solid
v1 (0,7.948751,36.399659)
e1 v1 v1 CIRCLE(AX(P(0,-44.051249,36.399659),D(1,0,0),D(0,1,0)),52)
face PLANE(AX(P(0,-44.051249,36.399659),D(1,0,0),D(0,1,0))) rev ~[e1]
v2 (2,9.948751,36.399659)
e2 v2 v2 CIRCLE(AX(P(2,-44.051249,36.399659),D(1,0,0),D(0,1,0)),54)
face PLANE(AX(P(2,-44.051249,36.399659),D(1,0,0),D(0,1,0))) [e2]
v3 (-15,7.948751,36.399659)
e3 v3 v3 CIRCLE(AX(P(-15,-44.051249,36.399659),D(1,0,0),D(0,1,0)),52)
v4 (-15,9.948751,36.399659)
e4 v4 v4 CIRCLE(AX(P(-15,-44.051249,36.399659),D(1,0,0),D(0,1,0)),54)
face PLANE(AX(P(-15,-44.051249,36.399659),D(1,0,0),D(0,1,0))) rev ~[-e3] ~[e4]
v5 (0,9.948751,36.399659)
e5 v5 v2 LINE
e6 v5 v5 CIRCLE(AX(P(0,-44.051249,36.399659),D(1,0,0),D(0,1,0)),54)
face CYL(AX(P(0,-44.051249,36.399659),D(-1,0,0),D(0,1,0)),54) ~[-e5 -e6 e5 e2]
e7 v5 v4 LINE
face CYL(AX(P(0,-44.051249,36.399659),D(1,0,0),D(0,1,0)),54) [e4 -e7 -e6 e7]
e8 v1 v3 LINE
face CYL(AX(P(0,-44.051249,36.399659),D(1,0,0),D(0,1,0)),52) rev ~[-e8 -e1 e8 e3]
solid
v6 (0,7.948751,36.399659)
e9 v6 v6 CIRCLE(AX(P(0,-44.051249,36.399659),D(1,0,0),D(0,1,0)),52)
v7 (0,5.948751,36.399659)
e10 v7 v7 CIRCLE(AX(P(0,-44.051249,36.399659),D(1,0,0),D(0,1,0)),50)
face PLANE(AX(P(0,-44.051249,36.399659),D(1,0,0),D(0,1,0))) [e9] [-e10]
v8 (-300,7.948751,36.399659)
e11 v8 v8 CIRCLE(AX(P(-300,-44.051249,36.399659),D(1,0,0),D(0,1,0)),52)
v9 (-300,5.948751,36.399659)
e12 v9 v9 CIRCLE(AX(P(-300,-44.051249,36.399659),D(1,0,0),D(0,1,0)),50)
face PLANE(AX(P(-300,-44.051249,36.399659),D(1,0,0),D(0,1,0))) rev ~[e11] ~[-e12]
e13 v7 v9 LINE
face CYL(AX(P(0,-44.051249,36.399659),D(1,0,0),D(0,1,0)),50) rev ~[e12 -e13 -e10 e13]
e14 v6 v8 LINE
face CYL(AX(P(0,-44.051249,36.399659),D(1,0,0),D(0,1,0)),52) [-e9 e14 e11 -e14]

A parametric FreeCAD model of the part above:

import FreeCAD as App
import Part
import Sketcher
from FreeCAD import Vector
Q = App.Units.Quantity

doc = App.newDocument("Part")
params = doc.addObject("Spreadsheet::Sheet", "Params")
for row, (alias, value) in enumerate([
    ("sketch1_diameter", "104 mm"),
    ("sketch1_diameter2", "100 mm"),
    ("pad1_length", "300 mm"),
    ("sketch2_diameter", "108 mm"),
    ("sketch2_diameter2", "104 mm"),
    ("pad2_length", "15 mm"),
    ("sketch3_diameter", "108 mm"),
    ("pad3_length", "2 mm"),
], start=1):
    params.set(f"A{row}", alias)
    params.set(f"B{row}", "=" + value)
    params.setAlias(f"B{row}", alias)

body = doc.addObject("PartDesign::Body", "Body")

# Sketch on YZ plane
sketch1 = body.newObject("Sketcher::SketchObject", "Sketch")
sketch1.AttachmentSupport = (doc.getObject("YZ_Plane"), [""])
sketch1.MapMode = "FlatFace"
sketch1.addGeometry([
    Part.Circle(Vector(-44, 36, 0), Vector(0, 0, 1), 52),
    Part.Circle(Vector(-44, 36, 0), Vector(0, 0, 1), 50),
], False)
sketch1.addConstraint([
    Sketcher.Constraint("Coincident", 1, 3, 0, 3),
    Sketcher.Constraint("Diameter", 0, Q("104 mm")),
    Sketcher.Constraint("Diameter", 1, Q("100 mm")),
    Sketcher.Constraint("DistanceX", 0, 3, -1, 1, Q("44.051249 mm")),
    Sketcher.Constraint("DistanceY", -1, 1, 0, 3, Q("36.399659 mm")),
])
sketch1.setExpression("Constraints[1]", "Params.sketch1_diameter")
sketch1.setExpression("Constraints[2]", "Params.sketch1_diameter2")
pad1 = body.newObject("PartDesign::Pad", "Pad")
pad1.Profile = sketch1
pad1.setExpression("Length", "Params.pad1_length")
pad1.Reversed = True
body2 = doc.addObject("PartDesign::Body", "Body001")

# Sketch on YZ plane
sketch2 = body2.newObject("Sketcher::SketchObject", "Sketch001")
sketch2.AttachmentSupport = (doc.getObject("YZ_Plane001"), [""])
sketch2.MapMode = "FlatFace"
sketch2.addGeometry([
    Part.Circle(Vector(-44, 36, 0), Vector(0, 0, 1), 54),
    Part.Circle(Vector(-44, 36, 0), Vector(0, 0, 1), 52),
], False)
sketch2.addConstraint([
    Sketcher.Constraint("Coincident", 1, 3, 0, 3),
    Sketcher.Constraint("Diameter", 0, Q("108 mm")),
    Sketcher.Constraint("Diameter", 1, Q("104 mm")),
    Sketcher.Constraint("DistanceX", 0, 3, -1, 1, Q("44.051249 mm")),
    Sketcher.Constraint("DistanceY", -1, 1, 0, 3, Q("36.399659 mm")),
])
sketch2.setExpression("Constraints[1]", "Params.sketch2_diameter")
sketch2.setExpression("Constraints[2]", "Params.sketch2_diameter2")
pad2 = body2.newObject("PartDesign::Pad", "Pad001")
pad2.Profile = sketch2
pad2.setExpression("Length", "Params.pad2_length")
pad2.Reversed = True

# Sketch on YZ plane
sketch3 = body2.newObject("Sketcher::SketchObject", "Sketch002")
sketch3.AttachmentSupport = (doc.getObject("YZ_Plane001"), [""])
sketch3.MapMode = "FlatFace"
sketch3.addGeometry(Part.Circle(Vector(-44, 36, 0), Vector(0, 0, 1), 54), False)
sketch3.addConstraint([
    Sketcher.Constraint("Diameter", 0, Q("108 mm")),
    Sketcher.Constraint("DistanceX", 0, 3, -1, 1, Q("44.051249 mm")),
    Sketcher.Constraint("DistanceY", -1, 1, 0, 3, Q("36.399659 mm")),
])
sketch3.setExpression("Constraints[0]", "Params.sketch3_diameter")
pad3 = body2.newObject("PartDesign::Pad", "Pad002")
pad3.Profile = sketch3
pad3.setExpression("Length", "Params.pad3_length")

doc.recompute()
